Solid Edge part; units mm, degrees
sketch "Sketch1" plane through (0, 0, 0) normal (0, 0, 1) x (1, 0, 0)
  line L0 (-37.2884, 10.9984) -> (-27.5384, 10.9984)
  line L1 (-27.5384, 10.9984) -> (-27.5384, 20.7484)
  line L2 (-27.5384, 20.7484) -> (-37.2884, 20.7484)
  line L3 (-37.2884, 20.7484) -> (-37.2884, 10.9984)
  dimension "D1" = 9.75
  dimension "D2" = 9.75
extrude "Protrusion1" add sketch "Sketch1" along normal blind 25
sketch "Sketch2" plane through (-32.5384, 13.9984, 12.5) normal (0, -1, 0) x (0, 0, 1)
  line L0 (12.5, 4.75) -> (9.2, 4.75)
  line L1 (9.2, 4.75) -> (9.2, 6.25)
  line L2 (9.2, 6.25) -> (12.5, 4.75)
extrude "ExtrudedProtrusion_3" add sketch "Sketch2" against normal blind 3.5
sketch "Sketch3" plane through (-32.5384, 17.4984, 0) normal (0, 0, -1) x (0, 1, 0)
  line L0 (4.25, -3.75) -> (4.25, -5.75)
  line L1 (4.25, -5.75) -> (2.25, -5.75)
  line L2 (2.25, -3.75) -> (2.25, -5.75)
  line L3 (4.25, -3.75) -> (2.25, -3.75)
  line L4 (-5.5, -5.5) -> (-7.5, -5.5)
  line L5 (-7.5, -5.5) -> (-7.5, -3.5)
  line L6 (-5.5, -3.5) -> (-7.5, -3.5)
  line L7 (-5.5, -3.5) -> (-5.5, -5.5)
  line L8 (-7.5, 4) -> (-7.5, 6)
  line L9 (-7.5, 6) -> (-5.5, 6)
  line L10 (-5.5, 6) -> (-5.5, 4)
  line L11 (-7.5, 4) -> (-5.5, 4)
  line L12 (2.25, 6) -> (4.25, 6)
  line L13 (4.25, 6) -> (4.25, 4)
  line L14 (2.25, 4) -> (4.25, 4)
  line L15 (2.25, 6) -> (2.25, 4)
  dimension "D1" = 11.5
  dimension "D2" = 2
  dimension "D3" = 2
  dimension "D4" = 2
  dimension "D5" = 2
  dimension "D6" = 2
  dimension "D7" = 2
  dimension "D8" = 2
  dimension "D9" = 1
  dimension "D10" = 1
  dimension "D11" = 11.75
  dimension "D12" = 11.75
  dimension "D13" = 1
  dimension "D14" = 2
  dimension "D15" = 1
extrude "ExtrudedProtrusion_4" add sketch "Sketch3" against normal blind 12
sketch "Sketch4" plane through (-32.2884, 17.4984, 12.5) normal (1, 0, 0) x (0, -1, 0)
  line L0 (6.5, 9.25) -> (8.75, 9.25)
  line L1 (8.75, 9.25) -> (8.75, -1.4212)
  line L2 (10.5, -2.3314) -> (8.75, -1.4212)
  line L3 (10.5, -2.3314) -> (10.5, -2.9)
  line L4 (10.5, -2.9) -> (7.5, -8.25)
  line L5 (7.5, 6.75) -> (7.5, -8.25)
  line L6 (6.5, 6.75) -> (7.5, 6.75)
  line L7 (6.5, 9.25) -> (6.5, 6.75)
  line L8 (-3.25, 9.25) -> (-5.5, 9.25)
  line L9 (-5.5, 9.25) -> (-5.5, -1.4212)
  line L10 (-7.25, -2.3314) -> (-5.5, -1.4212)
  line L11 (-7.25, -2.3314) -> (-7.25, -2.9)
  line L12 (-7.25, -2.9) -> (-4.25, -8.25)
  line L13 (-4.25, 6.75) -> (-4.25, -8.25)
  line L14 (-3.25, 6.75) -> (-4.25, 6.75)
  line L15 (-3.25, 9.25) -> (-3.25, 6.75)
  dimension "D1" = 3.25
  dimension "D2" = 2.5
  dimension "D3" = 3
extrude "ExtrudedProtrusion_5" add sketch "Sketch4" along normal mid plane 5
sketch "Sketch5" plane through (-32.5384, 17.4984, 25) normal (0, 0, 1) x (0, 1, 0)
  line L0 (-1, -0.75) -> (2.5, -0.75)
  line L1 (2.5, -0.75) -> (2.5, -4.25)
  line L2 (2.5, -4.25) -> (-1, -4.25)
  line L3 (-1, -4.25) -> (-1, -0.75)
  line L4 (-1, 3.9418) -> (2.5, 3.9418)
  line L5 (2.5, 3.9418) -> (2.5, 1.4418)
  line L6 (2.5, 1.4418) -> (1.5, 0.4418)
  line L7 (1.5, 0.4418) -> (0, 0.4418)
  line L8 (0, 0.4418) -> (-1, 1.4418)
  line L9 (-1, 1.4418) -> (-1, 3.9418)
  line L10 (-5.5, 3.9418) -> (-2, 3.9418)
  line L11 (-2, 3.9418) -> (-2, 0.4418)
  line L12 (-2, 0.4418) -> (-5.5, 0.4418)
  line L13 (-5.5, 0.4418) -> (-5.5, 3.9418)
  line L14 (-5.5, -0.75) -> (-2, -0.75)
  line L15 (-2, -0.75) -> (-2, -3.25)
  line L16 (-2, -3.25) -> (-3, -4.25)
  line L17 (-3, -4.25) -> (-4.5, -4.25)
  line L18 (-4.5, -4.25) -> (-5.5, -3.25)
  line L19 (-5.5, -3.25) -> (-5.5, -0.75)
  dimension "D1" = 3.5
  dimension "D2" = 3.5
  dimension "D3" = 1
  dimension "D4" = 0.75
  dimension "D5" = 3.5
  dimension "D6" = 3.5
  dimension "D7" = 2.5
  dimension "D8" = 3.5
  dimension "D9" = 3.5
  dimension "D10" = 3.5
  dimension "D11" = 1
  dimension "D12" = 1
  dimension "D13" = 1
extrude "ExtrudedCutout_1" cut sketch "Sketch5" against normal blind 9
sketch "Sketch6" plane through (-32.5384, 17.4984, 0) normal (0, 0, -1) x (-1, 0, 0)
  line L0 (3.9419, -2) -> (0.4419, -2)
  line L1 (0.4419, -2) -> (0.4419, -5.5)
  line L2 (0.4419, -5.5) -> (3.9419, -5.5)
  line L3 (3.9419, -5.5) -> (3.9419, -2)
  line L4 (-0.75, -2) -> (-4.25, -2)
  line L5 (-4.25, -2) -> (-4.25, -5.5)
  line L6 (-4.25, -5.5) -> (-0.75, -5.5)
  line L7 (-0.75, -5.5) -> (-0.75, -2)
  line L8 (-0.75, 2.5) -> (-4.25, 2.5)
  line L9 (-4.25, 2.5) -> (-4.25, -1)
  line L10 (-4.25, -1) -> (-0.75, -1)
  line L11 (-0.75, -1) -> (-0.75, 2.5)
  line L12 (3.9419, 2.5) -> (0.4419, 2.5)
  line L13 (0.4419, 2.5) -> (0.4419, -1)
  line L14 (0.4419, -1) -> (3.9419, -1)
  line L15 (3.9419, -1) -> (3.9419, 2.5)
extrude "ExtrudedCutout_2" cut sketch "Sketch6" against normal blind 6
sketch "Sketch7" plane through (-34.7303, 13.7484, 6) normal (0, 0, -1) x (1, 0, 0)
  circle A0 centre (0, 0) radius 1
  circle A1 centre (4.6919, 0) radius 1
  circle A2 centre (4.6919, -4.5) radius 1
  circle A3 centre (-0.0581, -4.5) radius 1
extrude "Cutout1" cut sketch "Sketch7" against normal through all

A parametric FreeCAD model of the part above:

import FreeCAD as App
import Part
import Sketcher
Q = App.Units.Quantity


def add_polygon(sketch, points):
    """Adds a closed chain of lines whose ends are joined by coincident constraints."""
    first, n = sketch.GeometryCount, len(points)
    for a, b in zip(points, points[1:] + points[:1]):
        sketch.addGeometry(Part.LineSegment(App.Vector(*a, 0), App.Vector(*b, 0)), False)
    for i in range(n):
        sketch.addConstraint(Sketcher.Constraint("Coincident", first + i, 2, first + (i + 1) % n, 1))

doc = App.newDocument("Part")
body = doc.addObject("PartDesign::Body", "Body")

# Sketch on XY plane
sketch1 = body.newObject("Sketcher::SketchObject", "Sketch")
sketch1.AttachmentSupport = (doc.getObject("XY_Plane"), [""])
sketch1.MapMode = "FlatFace"
add_polygon(sketch1, [(-37, 21), (-37, 11), (-28, 11), (-28, 21)])  # lines 0-3
sketch1.addConstraint(Sketcher.Constraint("Vertical", 0))
sketch1.addConstraint(Sketcher.Constraint("Horizontal", 1))
sketch1.addConstraint(Sketcher.Constraint("Vertical", 2))
sketch1.addConstraint(Sketcher.Constraint("Horizontal", 3))
sketch1.addConstraint(Sketcher.Constraint("Equal", 3, 0))
sketch1.addConstraint(Sketcher.Constraint("DistanceX", 1, 1, 1, 2, Q("9.75 mm")))
sketch1.addConstraint(Sketcher.Constraint("DistanceX", 0, 2, -1, 1, Q("37.2884 mm")))
sketch1.addConstraint(Sketcher.Constraint("DistanceY", -1, 1, 0, 2, Q("10.9984 mm")))
pad1 = body.newObject("PartDesign::Pad", "Pad")
pad1.Profile = sketch1
pad1.Length = 25

# Sketch on XZ plane
sketch2 = body.newObject("Sketcher::SketchObject", "Sketch001")
sketch2.AttachmentSupport = (doc.getObject("XZ_Plane"), [""])
sketch2.MapMode = "FlatFace"
sketch2.AttachmentOffset = App.Placement(App.Vector(0, 0, -13.9984), App.Rotation())
add_polygon(sketch2, [(-37.3, 21.7), (-37.3, 25), (-38.8, 21.7)])  # lines 0-2
sketch2.addConstraint(Sketcher.Constraint("Vertical", 0))
sketch2.addConstraint(Sketcher.Constraint("Horizontal", 2))
sketch2.addConstraint(Sketcher.Constraint("DistanceX", 2, 1, 2, 2, Q("1.5 mm")))
sketch2.addConstraint(Sketcher.Constraint("DistanceY", 0, 1, 0, 2, Q("3.3 mm")))
sketch2.addConstraint(Sketcher.Constraint("DistanceY", -1, 1, 0, 2, Q("25 mm")))
sketch2.addConstraint(Sketcher.Constraint("DistanceX", 0, 2, -1, 1, Q("37.2884 mm")))
pad2 = body.newObject("PartDesign::Pad", "Pad001")
pad2.Profile = sketch2
pad2.Length = 3.5
pad2.Reversed = True

# Sketch on XY plane
sketch3 = body.newObject("Sketcher::SketchObject", "Sketch002")
sketch3.AttachmentSupport = (doc.getObject("XY_Plane"), [""])
sketch3.MapMode = "FlatFace"
add_polygon(sketch3, [(-38.3, 21.7), (-36.3, 21.7), (-36.3, 19.7), (-38.3, 19.7)])  # lines 0-3
add_polygon(sketch3, [(-38, 10), (-38, 12), (-36, 12), (-36, 10)])  # lines 4-7
add_polygon(sketch3, [(-26.5, 10), (-28.5, 10), (-28.5, 12), (-26.5, 12)])  # lines 8-11
add_polygon(sketch3, [(-26.5, 21.7), (-26.5, 19.7), (-28.5, 19.7), (-28.5, 21.7)])  # lines 12-15
sketch3.addConstraint(Sketcher.Constraint("Horizontal", 0))
sketch3.addConstraint(Sketcher.Constraint("Vertical", 1))
sketch3.addConstraint(Sketcher.Constraint("Horizontal", 2))
sketch3.addConstraint(Sketcher.Constraint("Vertical", 3))
sketch3.addConstraint(Sketcher.Constraint("Vertical", 4))
sketch3.addConstraint(Sketcher.Constraint("Horizontal", 5))
sketch3.addConstraint(Sketcher.Constraint("Vertical", 6))
sketch3.addConstraint(Sketcher.Constraint("Horizontal", 7))
sketch3.addConstraint(Sketcher.Constraint("Horizontal", 8))
sketch3.addConstraint(Sketcher.Constraint("Vertical", 9))
sketch3.addConstraint(Sketcher.Constraint("Horizontal", 10))
sketch3.addConstraint(Sketcher.Constraint("Vertical", 11))
sketch3.addConstraint(Sketcher.Constraint("Vertical", 12))
sketch3.addConstraint(Sketcher.Constraint("Horizontal", 13))
sketch3.addConstraint(Sketcher.Constraint("Vertical", 14))
sketch3.addConstraint(Sketcher.Constraint("Horizontal", 15))
sketch3.addConstraint(Sketcher.Constraint("Horizontal", 7, 2, 8, 2))
sketch3.addConstraint(Sketcher.Constraint("Horizontal", 5, 2, 9, 2))
sketch3.addConstraint(Sketcher.Constraint("Horizontal", 2, 2, 12, 2))
sketch3.addConstraint(Sketcher.Constraint("Horizontal", 3, 2, 14, 2))
sketch3.addConstraint(Sketcher.Constraint("Vertical", 11, 2, 12, 2))
sketch3.addConstraint(Sketcher.Constraint("Vertical", 9, 2, 13, 2))
sketch3.addConstraint(Sketcher.Constraint("Equal", 2, 5))
sketch3.addConstraint(Sketcher.Constraint("Equal", 7, 8))
sketch3.addConstraint(Sketcher.Constraint("Equal", 15, 1))
sketch3.addConstraint(Sketcher.Constraint("Equal", 3, 4))
sketch3.addConstraint(Sketcher.Constraint("DistanceX", 6, 2, 8, 2, Q("7.5 mm")))
sketch3.addConstraint(Sketcher.Constraint("DistanceX", 0, 1, 0, 2, Q("2 mm")))
sketch3.addConstraint(Sketcher.Constraint("DistanceX", 2, 2, 5, 2, Q("2.25 mm")))
sketch3.addConstraint(Sketcher.Constraint("DistanceY", 4, 2, 2, 2, Q("7.75 mm")))
sketch3.addConstraint(Sketcher.Constraint("DistanceX", 0, 2, -1, 1, Q("36.2884 mm")))
sketch3.addConstraint(Sketcher.Constraint("DistanceY", -1, 1, 0, 2, Q("21.7484 mm")))
pad3 = body.newObject("PartDesign::Pad", "Pad002")
pad3.Profile = sketch3
pad3.Length = 12

# Sketch on YZ plane
sketch4 = body.newObject("Sketcher::SketchObject", "Sketch003")
sketch4.AttachmentSupport = (doc.getObject("YZ_Plane"), [""])
sketch4.MapMode = "FlatFace"
sketch4.AttachmentOffset = App.Placement(App.Vector(0, 0, -32.2884), App.Rotation())
add_polygon(sketch4, [(8.7, 3.2), (11, 3.2), (11, 5.8), (10, 5.8), (10, 20.8), (7, 15.4), (7, 14.8), (8.7, 13.9)])  # lines 0-7
add_polygon(sketch4, [(20.7, 5.8), (20.7, 3.2), (23, 3.2), (23, 13.9), (24.7, 14.8), (24.7, 15.4), (21.7, 20.8), (21.7, 5.8)])  # lines 8-15
sketch4.addConstraint(Sketcher.Constraint("Horizontal", 0))
sketch4.addConstraint(Sketcher.Constraint("Vertical", 1))
sketch4.addConstraint(Sketcher.Constraint("Horizontal", 2))
sketch4.addConstraint(Sketcher.Constraint("Vertical", 3))
sketch4.addConstraint(Sketcher.Constraint("Vertical", 5))
sketch4.addConstraint(Sketcher.Constraint("Vertical", 7))
sketch4.addConstraint(Sketcher.Constraint("Vertical", 8))
sketch4.addConstraint(Sketcher.Constraint("Horizontal", 9))
sketch4.addConstraint(Sketcher.Constraint("Vertical", 10))
sketch4.addConstraint(Sketcher.Constraint("Vertical", 12))
sketch4.addConstraint(Sketcher.Constraint("Vertical", 14))
sketch4.addConstraint(Sketcher.Constraint("Horizontal", 15))
sketch4.addConstraint(Sketcher.Constraint("Horizontal", 7, 2, 8, 2))
sketch4.addConstraint(Sketcher.Constraint("Horizontal", 6, 2, 10, 2))
sketch4.addConstraint(Sketcher.Constraint("Horizontal", 5, 2, 11, 2))
sketch4.addConstraint(Sketcher.Constraint("Horizontal", 4, 2, 12, 2))
sketch4.addConstraint(Sketcher.Constraint("Horizontal", 3, 2, 13, 2))
sketch4.addConstraint(Sketcher.Constraint("Horizontal", 2, 2, 14, 2))
sketch4.addConstraint(Sketcher.Constraint("Equal", 0, 9))
sketch4.addConstraint(Sketcher.Constraint("Equal", 2, 15))
sketch4.addConstraint(Sketcher.Constraint("Equal", 6, 11))
sketch4.addConstraint(Sketcher.Constraint("DistanceX", 2, 2, 2, 1, Q("1 mm")))
sketch4.addConstraint(Sketcher.Constraint("DistanceY", 3, 1, 3, 2, Q("15 mm")))
sketch4.addConstraint(Sketcher.Constraint("DistanceY", 1, 1, 1, 2, Q("2.5 mm")))
sketch4.addConstraint(Sketcher.Constraint("DistanceX", 4, 2, 3, 2, Q("3 mm")))
sketch4.addConstraint(Sketcher.Constraint("DistanceX", 7, 2, 8, 2, Q("12 mm")))
sketch4.addConstraint(Sketcher.Constraint("DistanceX", 0, 1, 0, 2, Q("2.25 mm")))
sketch4.addConstraint(Sketcher.Constraint("DistanceY", -1, 1, 4, 2, Q("15.4 mm")))
sketch4.addConstraint(Sketcher.Constraint("Angle", 6, Q("-27.4796 deg")))
sketch4.addConstraint(Sketcher.Constraint("DistanceY", -1, 1, 0, 2, Q("3.25 mm")))
sketch4.addConstraint(Sketcher.Constraint("DistanceY", 5, 2, 5, 1, Q("0.5686 mm")))
sketch4.addConstraint(Sketcher.Constraint("DistanceX", -1, 1, 0, 2, Q("10.9984 mm")))
pad4 = body.newObject("PartDesign::Pad", "Pad003")
pad4.Profile = sketch4
pad4.Length = 5
pad4.Midplane = True

# Sketch on XY plane
sketch5 = body.newObject("Sketcher::SketchObject", "Sketch004")
sketch5.AttachmentSupport = (doc.getObject("XY_Plane"), [""])
sketch5.MapMode = "FlatFace"
sketch5.AttachmentOffset = App.Placement(App.Vector(0, 0, 25), App.Rotation())
add_polygon(sketch5, [(-31.8, 20), (-31.8, 16.5), (-28.3, 16.5), (-28.3, 20)])  # lines 0-3
add_polygon(sketch5, [(-36.5, 20), (-36.5, 16.5), (-34, 16.5), (-33, 17.5), (-33, 19), (-34, 20)])  # lines 4-9
add_polygon(sketch5, [(-36.5, 15.5), (-36.5, 12), (-33, 12), (-33, 15.5)])  # lines 10-13
add_polygon(sketch5, [(-31.8, 15.5), (-31.8, 12), (-29.3, 12), (-28.3, 13), (-28.3, 14.5), (-29.3, 15.5)])  # lines 14-19
sketch5.addConstraint(Sketcher.Constraint("Vertical", 0))
sketch5.addConstraint(Sketcher.Constraint("Horizontal", 1))
sketch5.addConstraint(Sketcher.Constraint("Vertical", 2))
sketch5.addConstraint(Sketcher.Constraint("Horizontal", 3))
sketch5.addConstraint(Sketcher.Constraint("Vertical", 4))
sketch5.addConstraint(Sketcher.Constraint("Horizontal", 5))
sketch5.addConstraint(Sketcher.Constraint("Vertical", 7))
sketch5.addConstraint(Sketcher.Constraint("Horizontal", 9))
sketch5.addConstraint(Sketcher.Constraint("Vertical", 10))
sketch5.addConstraint(Sketcher.Constraint("Horizontal", 11))
sketch5.addConstraint(Sketcher.Constraint("Vertical", 12))
sketch5.addConstraint(Sketcher.Constraint("Horizontal", 13))
sketch5.addConstraint(Sketcher.Constraint("Vertical", 14))
sketch5.addConstraint(Sketcher.Constraint("Horizontal", 15))
sketch5.addConstraint(Sketcher.Constraint("Vertical", 17))
sketch5.addConstraint(Sketcher.Constraint("Horizontal", 19))
sketch5.addConstraint(Sketcher.Constraint("Perpendicular", 6, 8))
sketch5.addConstraint(Sketcher.Constraint("Perpendicular", 8, 16))
sketch5.addConstraint(Sketcher.Constraint("Perpendicular", 16, 18))
sketch5.addConstraint(Sketcher.Constraint("Horizontal", 1, 2, 4, 2))
sketch5.addConstraint(Sketcher.Constraint("Horizontal", 3, 2, 8, 2))
sketch5.addConstraint(Sketcher.Constraint("Horizontal", 11, 2, 14, 2))
sketch5.addConstraint(Sketcher.Constraint("Horizontal", 13, 2, 18, 2))
sketch5.addConstraint(Sketcher.Constraint("Vertical", 5, 2, 8, 2))
sketch5.addConstraint(Sketcher.Constraint("Vertical", 9, 2, 10, 2))
sketch5.addConstraint(Sketcher.Constraint("Vertical", 7, 2, 11, 2))
sketch5.addConstraint(Sketcher.Constraint("Vertical", 3, 2, 14, 2))
sketch5.addConstraint(Sketcher.Constraint("Vertical", 2, 2, 16, 2))
sketch5.addConstraint(Sketcher.Constraint("Vertical", 15, 2, 18, 2))
sketch5.addConstraint(Sketcher.Constraint("Equal", 3, 11))
sketch5.addConstraint(Sketcher.Constraint("Equal", 9, 15))
sketch5.addConstraint(Sketcher.Constraint("Equal", 13, 0))
sketch5.addConstraint(Sketcher.Constraint("Equal", 4, 10))
sketch5.addConstraint(Sketcher.Constraint("Equal", 6, 8))
sketch5.addConstraint(Sketcher.Constraint("DistanceX", 5, 1, 5, 2, Q("2.5 mm")))
sketch5.addConstraint(Sketcher.Constraint("DistanceX", 5, 2, 6, 2, Q("1 mm")))
sketch5.addConstraint(Sketcher.Constraint("DistanceY", 12, 2, 5, 2, Q("1 mm")))
sketch5.addConstraint(Sketcher.Constraint("DistanceX", 0, 2, -1, 1, Q("31.7884 mm")))
sketch5.addConstraint(Sketcher.Constraint("DistanceY", -1, 1, 0, 2, Q("16.4984 mm")))
sketch5.addConstraint(Sketcher.Constraint("DistanceX", 4, 2, -1, 1, Q("36.4802 mm")))
pocket1 = body.newObject("PartDesign::Pocket", "Pocket")
pocket1.Profile = sketch5
pocket1.Length = 9

# Sketch on XY plane
sketch6 = body.newObject("Sketcher::SketchObject", "Sketch005")
sketch6.AttachmentSupport = (doc.getObject("XY_Plane"), [""])
sketch6.MapMode = "FlatFace"
add_polygon(sketch6, [(-36.5, 12), (-36.5, 15.5), (-33, 15.5), (-33, 12)])  # lines 0-3
add_polygon(sketch6, [(-31.8, 12), (-31.8, 15.5), (-28.3, 15.5), (-28.3, 12)])  # lines 4-7
add_polygon(sketch6, [(-31.8, 16.5), (-31.8, 20), (-28.3, 20), (-28.3, 16.5)])  # lines 8-11
add_polygon(sketch6, [(-36.5, 16.5), (-36.5, 20), (-33, 20), (-33, 16.5)])  # lines 12-15
sketch6.addConstraint(Sketcher.Constraint("Vertical", 0))
sketch6.addConstraint(Sketcher.Constraint("Horizontal", 1))
sketch6.addConstraint(Sketcher.Constraint("Vertical", 2))
sketch6.addConstraint(Sketcher.Constraint("Horizontal", 3))
sketch6.addConstraint(Sketcher.Constraint("Vertical", 4))
sketch6.addConstraint(Sketcher.Constraint("Horizontal", 5))
sketch6.addConstraint(Sketcher.Constraint("Vertical", 6))
sketch6.addConstraint(Sketcher.Constraint("Horizontal", 7))
sketch6.addConstraint(Sketcher.Constraint("Vertical", 8))
sketch6.addConstraint(Sketcher.Constraint("Horizontal", 9))
sketch6.addConstraint(Sketcher.Constraint("Vertical", 10))
sketch6.addConstraint(Sketcher.Constraint("Horizontal", 11))
sketch6.addConstraint(Sketcher.Constraint("Vertical", 12))
sketch6.addConstraint(Sketcher.Constraint("Horizontal", 13))
sketch6.addConstraint(Sketcher.Constraint("Vertical", 14))
sketch6.addConstraint(Sketcher.Constraint("Horizontal", 15))
sketch6.addConstraint(Sketcher.Constraint("Horizontal", 1, 2, 4, 2))
sketch6.addConstraint(Sketcher.Constraint("Horizontal", 3, 2, 6, 2))
sketch6.addConstraint(Sketcher.Constraint("Horizontal", 9, 2, 12, 2))
sketch6.addConstraint(Sketcher.Constraint("Horizontal", 11, 2, 14, 2))
sketch6.addConstraint(Sketcher.Constraint("Vertical", 7, 2, 8, 2))
sketch6.addConstraint(Sketcher.Constraint("Vertical", 6, 2, 9, 2))
sketch6.addConstraint(Sketcher.Constraint("Vertical", 3, 2, 12, 2))
sketch6.addConstraint(Sketcher.Constraint("Vertical", 2, 2, 13, 2))
sketch6.addConstraint(Sketcher.Constraint("Equal", 3, 5))
sketch6.addConstraint(Sketcher.Constraint("Equal", 15, 0))
sketch6.addConstraint(Sketcher.Constraint("Equal", 6, 8))
sketch6.addConstraint(Sketcher.Constraint("DistanceX", 1, 1, 1, 2, Q("3.5 mm")))
sketch6.addConstraint(Sketcher.Constraint("DistanceY", 7, 2, 8, 2, Q("8 mm")))
sketch6.addConstraint(Sketcher.Constraint("DistanceX", 1, 2, 4, 2, Q("1.192 mm")))
sketch6.addConstraint(Sketcher.Constraint("DistanceX", 0, 2, -1, 1, Q("36.4803 mm")))
sketch6.addConstraint(Sketcher.Constraint("DistanceY", -1, 1, 0, 2, Q("15.4984 mm")))
pocket2 = body.newObject("PartDesign::Pocket", "Pocket001")
pocket2.Profile = sketch6
pocket2.Length = 6
pocket2.Reversed = True

# Sketch on XY plane
sketch7 = body.newObject("Sketcher::SketchObject", "Sketch006")
sketch7.AttachmentSupport = (doc.getObject("XY_Plane"), [""])
sketch7.MapMode = "FlatFace"
sketch7.AttachmentOffset = App.Placement(App.Vector(0, 0, 6), App.Rotation())
sketch7.addGeometry(Part.Circle(App.Vector(-34.7, 13.7, 0), App.Vector(0, 0, 1), 1), False)
sketch7.addGeometry(Part.Circle(App.Vector(-30, 13.7, 0), App.Vector(0, 0, 1), 1), False)
sketch7.addGeometry(Part.Circle(App.Vector(-30, 18.2, 0), App.Vector(0, 0, 1), 1), False)
sketch7.addGeometry(Part.Circle(App.Vector(-34.8, 18.2, 0), App.Vector(0, 0, 1), 1), False)
sketch7.addConstraint(Sketcher.Constraint("Equal", 0, 1))
sketch7.addConstraint(Sketcher.Constraint("Equal", 1, 2))
sketch7.addConstraint(Sketcher.Constraint("Equal", 2, 3))
sketch7.addConstraint(Sketcher.Constraint("Horizontal", 0, 3, 1, 3))
sketch7.addConstraint(Sketcher.Constraint("Horizontal", 2, 3, 3, 3))
sketch7.addConstraint(Sketcher.Constraint("Vertical", 1, 3, 2, 3))
sketch7.addConstraint(Sketcher.Constraint("Diameter", 0, Q("2 mm")))
sketch7.addConstraint(Sketcher.Constraint("DistanceY", 1, 3, 2, 3, Q("4.5 mm")))
sketch7.addConstraint(Sketcher.Constraint("DistanceX", 3, 3, 2, 3, Q("4.75 mm")))
sketch7.addConstraint(Sketcher.Constraint("DistanceX", 0, 3, 1, 3, Q("4.692 mm")))
sketch7.addConstraint(Sketcher.Constraint("DistanceX", 0, 3, -1, 1, Q("34.7303 mm")))
sketch7.addConstraint(Sketcher.Constraint("DistanceY", -1, 1, 0, 3, Q("13.7484 mm")))
pocket3 = body.newObject("PartDesign::Pocket", "Pocket002")
pocket3.Profile = sketch7
pocket3.Type = "ThroughAll"
pocket3.Reversed = True

doc.recompute()
